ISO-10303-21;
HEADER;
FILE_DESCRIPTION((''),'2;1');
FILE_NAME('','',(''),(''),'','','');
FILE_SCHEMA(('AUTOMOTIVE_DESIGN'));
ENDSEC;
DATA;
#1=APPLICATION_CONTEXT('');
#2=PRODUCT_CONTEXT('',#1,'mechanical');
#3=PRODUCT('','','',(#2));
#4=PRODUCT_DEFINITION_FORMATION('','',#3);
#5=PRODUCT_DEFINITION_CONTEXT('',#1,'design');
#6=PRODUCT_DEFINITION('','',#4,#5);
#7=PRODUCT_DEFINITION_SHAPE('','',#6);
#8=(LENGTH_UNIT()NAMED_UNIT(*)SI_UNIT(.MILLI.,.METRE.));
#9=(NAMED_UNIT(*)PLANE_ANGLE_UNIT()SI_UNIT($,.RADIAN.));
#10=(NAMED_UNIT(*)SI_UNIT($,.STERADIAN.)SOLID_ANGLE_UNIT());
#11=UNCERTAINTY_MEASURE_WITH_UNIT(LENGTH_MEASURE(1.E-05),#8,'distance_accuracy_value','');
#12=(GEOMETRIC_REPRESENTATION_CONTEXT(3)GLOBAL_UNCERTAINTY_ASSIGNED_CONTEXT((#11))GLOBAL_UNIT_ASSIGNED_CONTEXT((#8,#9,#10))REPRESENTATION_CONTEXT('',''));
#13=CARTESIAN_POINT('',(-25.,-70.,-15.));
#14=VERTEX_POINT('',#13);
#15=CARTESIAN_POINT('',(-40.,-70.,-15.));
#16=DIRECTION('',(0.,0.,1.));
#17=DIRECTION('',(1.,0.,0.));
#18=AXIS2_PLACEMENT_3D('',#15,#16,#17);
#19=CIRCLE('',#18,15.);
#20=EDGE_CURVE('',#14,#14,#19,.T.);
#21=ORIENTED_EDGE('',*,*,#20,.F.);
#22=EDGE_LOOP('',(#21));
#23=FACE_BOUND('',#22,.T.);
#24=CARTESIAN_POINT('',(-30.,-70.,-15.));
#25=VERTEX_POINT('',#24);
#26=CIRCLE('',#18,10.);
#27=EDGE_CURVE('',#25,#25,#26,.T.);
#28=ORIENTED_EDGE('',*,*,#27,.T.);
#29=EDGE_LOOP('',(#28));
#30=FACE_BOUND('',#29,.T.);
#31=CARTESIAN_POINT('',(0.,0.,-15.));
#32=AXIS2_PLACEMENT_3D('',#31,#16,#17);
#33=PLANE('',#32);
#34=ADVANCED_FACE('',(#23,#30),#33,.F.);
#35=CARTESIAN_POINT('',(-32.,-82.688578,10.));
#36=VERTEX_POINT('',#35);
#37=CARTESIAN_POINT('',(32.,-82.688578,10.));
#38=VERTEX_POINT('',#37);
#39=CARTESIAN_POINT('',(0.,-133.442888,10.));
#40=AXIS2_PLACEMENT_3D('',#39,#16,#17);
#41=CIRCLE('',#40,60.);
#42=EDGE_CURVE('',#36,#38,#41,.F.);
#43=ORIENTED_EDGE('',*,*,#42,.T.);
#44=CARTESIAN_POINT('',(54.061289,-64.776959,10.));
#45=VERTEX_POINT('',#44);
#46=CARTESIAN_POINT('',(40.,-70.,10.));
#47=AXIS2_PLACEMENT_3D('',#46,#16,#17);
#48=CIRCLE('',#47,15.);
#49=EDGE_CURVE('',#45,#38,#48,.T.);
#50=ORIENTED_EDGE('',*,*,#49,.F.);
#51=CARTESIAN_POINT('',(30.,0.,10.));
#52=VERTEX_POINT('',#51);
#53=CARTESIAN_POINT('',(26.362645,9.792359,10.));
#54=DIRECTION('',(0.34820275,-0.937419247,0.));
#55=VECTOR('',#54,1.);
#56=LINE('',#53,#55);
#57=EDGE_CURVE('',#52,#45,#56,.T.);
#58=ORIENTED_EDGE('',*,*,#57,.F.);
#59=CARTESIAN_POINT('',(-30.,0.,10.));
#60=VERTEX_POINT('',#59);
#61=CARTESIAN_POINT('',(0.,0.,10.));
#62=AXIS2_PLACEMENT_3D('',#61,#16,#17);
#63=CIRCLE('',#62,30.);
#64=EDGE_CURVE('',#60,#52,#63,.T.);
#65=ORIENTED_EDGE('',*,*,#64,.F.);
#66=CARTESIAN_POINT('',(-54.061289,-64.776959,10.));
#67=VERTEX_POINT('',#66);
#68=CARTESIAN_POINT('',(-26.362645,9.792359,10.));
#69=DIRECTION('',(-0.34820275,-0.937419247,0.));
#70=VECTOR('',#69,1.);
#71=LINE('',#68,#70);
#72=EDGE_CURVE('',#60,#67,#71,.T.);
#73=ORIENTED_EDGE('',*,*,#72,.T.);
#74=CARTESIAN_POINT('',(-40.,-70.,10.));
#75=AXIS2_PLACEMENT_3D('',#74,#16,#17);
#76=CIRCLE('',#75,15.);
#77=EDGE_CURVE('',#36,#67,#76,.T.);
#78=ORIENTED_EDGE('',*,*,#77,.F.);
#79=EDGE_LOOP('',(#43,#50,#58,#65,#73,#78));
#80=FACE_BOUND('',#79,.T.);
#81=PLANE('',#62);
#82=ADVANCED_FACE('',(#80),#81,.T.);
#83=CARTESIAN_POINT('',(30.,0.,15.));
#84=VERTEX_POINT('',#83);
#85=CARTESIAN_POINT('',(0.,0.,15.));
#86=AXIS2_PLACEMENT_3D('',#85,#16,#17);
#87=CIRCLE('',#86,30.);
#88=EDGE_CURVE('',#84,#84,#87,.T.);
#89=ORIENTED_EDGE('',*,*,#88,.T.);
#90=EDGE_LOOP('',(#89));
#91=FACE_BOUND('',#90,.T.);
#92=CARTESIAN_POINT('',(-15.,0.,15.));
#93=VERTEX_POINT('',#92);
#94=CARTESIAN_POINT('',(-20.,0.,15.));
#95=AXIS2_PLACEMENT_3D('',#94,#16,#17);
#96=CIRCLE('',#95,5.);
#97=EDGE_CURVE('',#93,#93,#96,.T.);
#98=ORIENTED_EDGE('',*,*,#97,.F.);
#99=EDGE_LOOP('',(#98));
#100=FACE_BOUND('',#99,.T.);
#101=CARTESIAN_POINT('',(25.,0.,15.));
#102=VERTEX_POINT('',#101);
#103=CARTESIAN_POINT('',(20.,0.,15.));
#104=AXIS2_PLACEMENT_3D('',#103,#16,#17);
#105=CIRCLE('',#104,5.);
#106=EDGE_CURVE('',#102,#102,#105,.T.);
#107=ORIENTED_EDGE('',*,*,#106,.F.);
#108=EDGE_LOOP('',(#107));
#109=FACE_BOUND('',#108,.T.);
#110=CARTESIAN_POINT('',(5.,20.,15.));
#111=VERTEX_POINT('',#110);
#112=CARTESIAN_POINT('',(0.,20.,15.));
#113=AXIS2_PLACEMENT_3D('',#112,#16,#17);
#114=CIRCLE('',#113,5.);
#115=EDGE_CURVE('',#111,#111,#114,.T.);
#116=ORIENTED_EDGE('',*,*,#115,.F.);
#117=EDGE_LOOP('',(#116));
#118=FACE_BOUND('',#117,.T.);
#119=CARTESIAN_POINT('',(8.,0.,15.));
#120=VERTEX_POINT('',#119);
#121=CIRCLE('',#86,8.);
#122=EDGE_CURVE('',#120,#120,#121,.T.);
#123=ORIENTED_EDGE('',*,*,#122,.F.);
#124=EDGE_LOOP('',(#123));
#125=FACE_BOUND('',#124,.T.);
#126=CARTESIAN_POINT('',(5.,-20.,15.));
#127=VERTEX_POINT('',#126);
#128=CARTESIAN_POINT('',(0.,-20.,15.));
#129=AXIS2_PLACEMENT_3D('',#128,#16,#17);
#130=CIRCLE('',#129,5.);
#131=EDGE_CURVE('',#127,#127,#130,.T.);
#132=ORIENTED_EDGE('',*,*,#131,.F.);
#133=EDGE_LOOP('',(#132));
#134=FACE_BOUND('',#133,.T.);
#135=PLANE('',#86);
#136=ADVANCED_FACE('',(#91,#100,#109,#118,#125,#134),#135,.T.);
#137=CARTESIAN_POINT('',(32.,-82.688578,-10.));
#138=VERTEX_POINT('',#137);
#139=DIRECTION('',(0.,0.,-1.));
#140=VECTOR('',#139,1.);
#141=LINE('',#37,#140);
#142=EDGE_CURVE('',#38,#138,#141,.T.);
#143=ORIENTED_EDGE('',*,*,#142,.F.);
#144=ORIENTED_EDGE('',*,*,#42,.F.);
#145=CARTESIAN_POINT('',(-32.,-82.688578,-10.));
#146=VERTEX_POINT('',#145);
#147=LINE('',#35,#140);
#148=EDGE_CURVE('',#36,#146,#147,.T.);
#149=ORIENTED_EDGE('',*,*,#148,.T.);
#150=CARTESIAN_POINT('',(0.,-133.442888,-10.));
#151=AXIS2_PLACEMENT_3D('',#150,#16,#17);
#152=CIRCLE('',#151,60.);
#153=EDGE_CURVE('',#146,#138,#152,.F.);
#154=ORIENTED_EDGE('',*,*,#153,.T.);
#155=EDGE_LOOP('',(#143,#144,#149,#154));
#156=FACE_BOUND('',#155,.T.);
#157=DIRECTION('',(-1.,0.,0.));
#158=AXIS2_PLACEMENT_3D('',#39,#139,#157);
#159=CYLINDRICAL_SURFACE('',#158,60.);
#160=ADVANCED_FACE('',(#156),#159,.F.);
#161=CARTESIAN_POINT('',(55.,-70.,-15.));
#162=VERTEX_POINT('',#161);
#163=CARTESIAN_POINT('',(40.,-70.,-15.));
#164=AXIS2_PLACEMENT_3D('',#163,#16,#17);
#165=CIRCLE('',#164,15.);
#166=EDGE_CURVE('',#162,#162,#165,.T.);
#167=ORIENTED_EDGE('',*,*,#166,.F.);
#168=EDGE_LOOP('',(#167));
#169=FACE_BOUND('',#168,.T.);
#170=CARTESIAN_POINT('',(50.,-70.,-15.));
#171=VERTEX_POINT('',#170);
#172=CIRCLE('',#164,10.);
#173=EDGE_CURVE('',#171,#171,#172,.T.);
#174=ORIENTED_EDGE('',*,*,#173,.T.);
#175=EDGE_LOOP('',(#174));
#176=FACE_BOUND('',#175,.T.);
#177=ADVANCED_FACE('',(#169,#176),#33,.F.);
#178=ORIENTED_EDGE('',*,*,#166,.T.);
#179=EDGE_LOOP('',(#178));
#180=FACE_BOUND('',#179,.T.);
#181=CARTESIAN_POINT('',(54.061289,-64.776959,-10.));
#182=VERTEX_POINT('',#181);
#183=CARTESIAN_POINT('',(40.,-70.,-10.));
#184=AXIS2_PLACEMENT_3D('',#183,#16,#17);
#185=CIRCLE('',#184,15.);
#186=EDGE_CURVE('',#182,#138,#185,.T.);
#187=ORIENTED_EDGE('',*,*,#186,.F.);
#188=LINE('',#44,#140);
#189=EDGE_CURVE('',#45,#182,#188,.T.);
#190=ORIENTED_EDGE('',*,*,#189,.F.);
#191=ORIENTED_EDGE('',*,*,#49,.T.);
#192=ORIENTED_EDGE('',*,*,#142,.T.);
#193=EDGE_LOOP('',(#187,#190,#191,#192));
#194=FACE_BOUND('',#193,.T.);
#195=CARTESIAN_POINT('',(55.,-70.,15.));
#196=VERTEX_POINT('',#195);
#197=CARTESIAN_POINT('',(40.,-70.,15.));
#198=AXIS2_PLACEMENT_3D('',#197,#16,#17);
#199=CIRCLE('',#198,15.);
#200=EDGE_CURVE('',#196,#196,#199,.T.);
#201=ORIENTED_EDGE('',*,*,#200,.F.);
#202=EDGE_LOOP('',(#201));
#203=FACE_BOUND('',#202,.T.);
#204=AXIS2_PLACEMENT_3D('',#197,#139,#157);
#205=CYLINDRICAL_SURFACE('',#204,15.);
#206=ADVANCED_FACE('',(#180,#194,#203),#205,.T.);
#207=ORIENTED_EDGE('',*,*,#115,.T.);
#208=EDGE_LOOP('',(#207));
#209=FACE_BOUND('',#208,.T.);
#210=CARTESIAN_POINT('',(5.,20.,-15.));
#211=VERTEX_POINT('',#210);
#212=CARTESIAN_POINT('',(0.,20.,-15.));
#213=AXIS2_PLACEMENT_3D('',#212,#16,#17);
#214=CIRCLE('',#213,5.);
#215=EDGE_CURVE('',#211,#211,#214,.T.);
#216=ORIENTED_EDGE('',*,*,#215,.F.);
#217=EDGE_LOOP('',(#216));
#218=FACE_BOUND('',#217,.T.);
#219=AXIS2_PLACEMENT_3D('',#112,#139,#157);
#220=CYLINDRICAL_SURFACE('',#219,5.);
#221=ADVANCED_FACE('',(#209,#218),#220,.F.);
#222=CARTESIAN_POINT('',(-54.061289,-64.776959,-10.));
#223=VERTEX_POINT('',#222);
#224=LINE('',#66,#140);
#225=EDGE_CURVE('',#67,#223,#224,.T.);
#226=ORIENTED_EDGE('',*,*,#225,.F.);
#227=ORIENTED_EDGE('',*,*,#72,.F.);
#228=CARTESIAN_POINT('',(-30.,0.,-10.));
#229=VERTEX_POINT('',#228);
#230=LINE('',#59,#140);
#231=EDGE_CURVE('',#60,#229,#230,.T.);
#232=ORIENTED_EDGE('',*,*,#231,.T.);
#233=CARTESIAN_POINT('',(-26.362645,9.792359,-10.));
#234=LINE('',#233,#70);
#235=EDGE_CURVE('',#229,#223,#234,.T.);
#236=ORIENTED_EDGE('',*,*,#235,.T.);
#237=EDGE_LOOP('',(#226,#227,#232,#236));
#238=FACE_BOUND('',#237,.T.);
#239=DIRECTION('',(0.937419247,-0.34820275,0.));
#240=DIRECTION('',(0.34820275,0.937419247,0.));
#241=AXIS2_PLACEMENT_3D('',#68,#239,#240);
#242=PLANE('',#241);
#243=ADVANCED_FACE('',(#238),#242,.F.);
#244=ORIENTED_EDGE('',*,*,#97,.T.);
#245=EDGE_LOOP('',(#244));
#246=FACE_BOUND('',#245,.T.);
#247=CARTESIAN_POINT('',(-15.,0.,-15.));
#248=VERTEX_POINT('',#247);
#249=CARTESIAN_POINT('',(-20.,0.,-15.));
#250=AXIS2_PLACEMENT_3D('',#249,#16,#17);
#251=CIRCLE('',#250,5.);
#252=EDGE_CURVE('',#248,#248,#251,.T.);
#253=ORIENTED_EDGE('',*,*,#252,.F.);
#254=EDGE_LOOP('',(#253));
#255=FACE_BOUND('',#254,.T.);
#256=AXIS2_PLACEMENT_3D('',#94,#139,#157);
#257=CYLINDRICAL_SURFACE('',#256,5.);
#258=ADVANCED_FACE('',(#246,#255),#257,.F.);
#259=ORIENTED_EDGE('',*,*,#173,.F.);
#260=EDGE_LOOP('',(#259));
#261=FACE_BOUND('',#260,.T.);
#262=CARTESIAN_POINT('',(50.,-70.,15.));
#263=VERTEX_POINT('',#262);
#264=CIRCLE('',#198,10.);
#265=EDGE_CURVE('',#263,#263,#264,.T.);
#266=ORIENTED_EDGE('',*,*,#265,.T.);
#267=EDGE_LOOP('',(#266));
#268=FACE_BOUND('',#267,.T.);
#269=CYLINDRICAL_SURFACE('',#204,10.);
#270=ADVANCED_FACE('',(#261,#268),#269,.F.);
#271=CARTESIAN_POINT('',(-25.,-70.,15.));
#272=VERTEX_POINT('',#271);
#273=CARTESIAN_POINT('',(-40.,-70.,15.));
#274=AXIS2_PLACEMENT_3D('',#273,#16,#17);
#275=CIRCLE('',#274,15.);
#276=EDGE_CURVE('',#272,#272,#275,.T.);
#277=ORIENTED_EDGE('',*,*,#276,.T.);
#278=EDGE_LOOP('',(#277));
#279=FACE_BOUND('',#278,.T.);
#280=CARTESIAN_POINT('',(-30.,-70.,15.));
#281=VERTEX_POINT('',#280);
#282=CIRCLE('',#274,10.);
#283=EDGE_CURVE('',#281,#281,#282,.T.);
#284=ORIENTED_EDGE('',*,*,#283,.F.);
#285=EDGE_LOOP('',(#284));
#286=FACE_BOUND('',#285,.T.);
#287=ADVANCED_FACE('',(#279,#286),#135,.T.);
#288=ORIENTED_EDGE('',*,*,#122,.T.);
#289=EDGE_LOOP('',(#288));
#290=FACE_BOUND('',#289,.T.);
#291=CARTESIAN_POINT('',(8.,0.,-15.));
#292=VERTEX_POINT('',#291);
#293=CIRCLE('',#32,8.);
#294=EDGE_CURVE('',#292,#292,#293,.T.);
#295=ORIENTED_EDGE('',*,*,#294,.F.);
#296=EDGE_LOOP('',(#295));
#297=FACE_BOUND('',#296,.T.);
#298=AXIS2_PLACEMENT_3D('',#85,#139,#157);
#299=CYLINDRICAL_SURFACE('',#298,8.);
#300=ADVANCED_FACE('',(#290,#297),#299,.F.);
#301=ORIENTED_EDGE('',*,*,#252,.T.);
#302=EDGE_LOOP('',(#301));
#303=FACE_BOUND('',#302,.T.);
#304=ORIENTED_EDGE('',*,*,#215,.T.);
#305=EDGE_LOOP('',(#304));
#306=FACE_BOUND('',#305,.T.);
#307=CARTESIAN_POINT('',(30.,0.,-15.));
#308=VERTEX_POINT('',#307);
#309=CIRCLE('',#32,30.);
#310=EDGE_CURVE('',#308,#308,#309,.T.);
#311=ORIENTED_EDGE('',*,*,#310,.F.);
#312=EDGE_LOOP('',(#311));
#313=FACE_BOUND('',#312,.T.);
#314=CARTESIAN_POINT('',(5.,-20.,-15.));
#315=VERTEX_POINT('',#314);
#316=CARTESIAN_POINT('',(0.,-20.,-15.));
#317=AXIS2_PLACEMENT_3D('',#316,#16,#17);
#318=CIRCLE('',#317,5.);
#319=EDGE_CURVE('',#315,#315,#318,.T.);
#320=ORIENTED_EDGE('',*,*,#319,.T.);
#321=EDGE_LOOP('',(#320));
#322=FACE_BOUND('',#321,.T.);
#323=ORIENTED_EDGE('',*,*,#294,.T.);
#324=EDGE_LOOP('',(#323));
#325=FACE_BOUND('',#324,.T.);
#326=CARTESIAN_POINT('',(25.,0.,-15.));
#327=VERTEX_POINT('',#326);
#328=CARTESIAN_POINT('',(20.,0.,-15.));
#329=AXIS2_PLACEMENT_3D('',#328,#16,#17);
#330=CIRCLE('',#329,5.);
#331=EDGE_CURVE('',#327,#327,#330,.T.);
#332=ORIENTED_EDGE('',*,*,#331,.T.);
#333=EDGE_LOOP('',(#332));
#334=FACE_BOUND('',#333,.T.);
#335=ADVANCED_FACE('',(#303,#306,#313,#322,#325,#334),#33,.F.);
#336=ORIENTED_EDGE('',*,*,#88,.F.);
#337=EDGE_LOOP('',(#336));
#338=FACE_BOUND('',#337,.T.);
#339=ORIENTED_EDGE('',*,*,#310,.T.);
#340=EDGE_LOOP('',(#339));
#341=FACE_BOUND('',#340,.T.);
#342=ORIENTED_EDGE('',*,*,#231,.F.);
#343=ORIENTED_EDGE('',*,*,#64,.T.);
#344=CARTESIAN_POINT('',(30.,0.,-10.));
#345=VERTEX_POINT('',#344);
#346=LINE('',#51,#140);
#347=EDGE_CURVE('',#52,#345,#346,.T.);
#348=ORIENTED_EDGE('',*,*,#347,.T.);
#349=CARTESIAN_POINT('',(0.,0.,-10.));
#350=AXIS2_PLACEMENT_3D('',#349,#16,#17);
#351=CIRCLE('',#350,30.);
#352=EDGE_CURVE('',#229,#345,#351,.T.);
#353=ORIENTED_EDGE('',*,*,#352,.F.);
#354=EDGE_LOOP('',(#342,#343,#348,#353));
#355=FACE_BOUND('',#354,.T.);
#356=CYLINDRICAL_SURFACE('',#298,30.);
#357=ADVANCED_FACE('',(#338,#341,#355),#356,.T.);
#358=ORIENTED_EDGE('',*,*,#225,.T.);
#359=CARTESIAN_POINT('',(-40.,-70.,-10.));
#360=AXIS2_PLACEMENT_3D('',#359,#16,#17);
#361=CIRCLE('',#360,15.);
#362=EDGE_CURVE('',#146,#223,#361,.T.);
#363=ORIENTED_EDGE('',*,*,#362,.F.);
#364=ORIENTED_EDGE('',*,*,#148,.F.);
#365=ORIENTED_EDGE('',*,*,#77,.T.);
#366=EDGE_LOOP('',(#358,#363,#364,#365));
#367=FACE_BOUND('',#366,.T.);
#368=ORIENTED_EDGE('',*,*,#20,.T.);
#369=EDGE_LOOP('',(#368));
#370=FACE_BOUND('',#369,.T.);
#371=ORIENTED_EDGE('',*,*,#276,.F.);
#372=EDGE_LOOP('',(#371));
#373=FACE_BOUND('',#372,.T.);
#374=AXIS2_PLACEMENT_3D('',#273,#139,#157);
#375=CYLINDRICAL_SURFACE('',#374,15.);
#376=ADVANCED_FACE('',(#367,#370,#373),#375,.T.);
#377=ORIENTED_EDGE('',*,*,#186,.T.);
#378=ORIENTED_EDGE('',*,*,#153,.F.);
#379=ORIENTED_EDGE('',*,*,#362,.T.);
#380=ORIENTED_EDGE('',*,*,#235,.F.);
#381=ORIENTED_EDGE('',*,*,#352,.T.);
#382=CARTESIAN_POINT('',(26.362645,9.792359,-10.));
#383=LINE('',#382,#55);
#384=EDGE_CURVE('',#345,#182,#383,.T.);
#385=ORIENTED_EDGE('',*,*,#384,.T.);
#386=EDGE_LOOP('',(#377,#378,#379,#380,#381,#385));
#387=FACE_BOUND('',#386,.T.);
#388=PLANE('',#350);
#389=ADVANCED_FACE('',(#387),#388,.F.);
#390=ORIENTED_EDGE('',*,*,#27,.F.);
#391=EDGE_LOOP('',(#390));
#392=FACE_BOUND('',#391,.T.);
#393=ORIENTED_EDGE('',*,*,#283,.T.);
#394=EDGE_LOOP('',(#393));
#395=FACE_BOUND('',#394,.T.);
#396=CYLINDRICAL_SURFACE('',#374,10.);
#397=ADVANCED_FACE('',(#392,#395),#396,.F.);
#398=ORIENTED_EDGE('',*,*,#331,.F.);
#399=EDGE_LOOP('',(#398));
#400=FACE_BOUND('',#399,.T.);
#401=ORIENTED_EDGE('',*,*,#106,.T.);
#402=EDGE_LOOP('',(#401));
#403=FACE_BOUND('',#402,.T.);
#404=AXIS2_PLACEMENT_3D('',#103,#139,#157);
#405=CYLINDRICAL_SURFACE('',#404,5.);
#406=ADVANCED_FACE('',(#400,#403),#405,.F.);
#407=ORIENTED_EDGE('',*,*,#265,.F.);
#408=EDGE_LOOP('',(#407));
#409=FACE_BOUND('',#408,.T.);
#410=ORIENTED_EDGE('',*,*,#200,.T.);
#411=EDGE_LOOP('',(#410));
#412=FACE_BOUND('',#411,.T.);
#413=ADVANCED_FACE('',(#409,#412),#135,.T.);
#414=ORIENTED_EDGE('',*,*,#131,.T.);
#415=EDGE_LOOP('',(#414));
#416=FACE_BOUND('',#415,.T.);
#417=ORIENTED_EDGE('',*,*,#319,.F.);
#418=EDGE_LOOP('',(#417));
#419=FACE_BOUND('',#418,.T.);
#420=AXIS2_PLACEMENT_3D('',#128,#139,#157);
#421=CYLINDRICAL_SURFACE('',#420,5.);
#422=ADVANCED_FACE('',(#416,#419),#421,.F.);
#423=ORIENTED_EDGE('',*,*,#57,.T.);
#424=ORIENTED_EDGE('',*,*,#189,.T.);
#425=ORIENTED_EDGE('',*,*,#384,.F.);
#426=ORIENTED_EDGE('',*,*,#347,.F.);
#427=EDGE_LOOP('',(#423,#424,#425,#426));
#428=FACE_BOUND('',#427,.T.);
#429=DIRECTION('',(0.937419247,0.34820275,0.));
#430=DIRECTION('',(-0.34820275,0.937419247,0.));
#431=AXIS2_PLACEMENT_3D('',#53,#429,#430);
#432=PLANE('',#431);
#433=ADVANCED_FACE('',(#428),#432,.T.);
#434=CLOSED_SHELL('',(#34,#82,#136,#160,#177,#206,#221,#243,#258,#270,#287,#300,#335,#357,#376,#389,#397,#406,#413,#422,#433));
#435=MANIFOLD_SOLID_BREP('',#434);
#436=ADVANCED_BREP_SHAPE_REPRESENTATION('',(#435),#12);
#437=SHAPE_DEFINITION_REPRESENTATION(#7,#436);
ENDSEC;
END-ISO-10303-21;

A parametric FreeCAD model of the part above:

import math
import FreeCAD as App
import Part
import Sketcher

V = App.Vector

doc = App.newDocument("Part")
body = doc.addObject("PartDesign::Body", "Body")

sketch1 = doc.addObject("Sketcher::SketchObject", "Sketch")
body.addObject(sketch1)
sketch1.AttachmentSupport = (doc.XY_Plane, [""])
sketch1.MapMode = "FlatFace"
sketch1.addGeometry([
    Part.Circle(V(-40, -70, 0), V(0, 0, 1), 15),
    Part.Circle(V(-40, -70, 0), V(0, 0, 1), 10),
], False)
sketch1.addConstraint([
    Sketcher.Constraint("Coincident", 1, 3, 0, 3),
    Sketcher.Constraint("Diameter", 0, 30.0),
    Sketcher.Constraint("Diameter", 1, 20.0),
    Sketcher.Constraint("DistanceX", 0, 3, -1, 1, 40.0),
    Sketcher.Constraint("DistanceY", 0, 3, -1, 1, 70.0),
])
pad1 = doc.addObject("PartDesign::Pad", "Pad")
body.addObject(pad1)
pad1.Profile = sketch1
pad1.Length = 30
pad1.Midplane = True
body2 = doc.addObject("PartDesign::Body", "Body001")

sketch2 = doc.addObject("Sketcher::SketchObject", "Sketch001")
body2.addObject(sketch2)
sketch2.AttachmentSupport = (doc.getObject("XY_Plane001"), [""])
sketch2.MapMode = "FlatFace"
sketch2.addGeometry([
    Part.Circle(V(40, -70, 0), V(0, 0, 1), 15),
    Part.Circle(V(40, -70, 0), V(0, 0, 1), 10),
], False)
sketch2.addConstraint([
    Sketcher.Constraint("Coincident", 1, 3, 0, 3),
    Sketcher.Constraint("Diameter", 0, 30.0),
    Sketcher.Constraint("Diameter", 1, 20.0),
    Sketcher.Constraint("DistanceX", -1, 1, 0, 3, 40.0),
    Sketcher.Constraint("DistanceY", 0, 3, -1, 1, 70.0),
])
pad2 = doc.addObject("PartDesign::Pad", "Pad001")
body2.addObject(pad2)
pad2.Profile = sketch2
pad2.Length = 30
pad2.Midplane = True
body3 = doc.addObject("PartDesign::Body", "Body002")

sketch3 = doc.addObject("Sketcher::SketchObject", "Sketch002")
body3.addObject(sketch3)
sketch3.AttachmentSupport = (doc.getObject("XY_Plane002"), [""])
sketch3.MapMode = "FlatFace"
sketch3.addGeometry([
    Part.Circle(V(0, 0, 0), V(0, 0, 1), 30),
    Part.Circle(V(0, -20, 0), V(0, 0, 1), 5),
    Part.Circle(V(-20, 0, 0), V(0, 0, 1), 5),
    Part.Circle(V(0, 0, 0), V(0, 0, 1), 8),
    Part.Circle(V(20, 0, 0), V(0, 0, 1), 5),
    Part.Circle(V(0, 20, 0), V(0, 0, 1), 5),
], False)
sketch3.addConstraint([
    Sketcher.Constraint("Coincident", 0, 3, -1, 1),
    Sketcher.Constraint("Coincident", 3, 3, -1, 1),
    Sketcher.Constraint("Equal", 1, 2),
    Sketcher.Constraint("Equal", 2, 4),
    Sketcher.Constraint("Equal", 4, 5),
    Sketcher.Constraint("Symmetric", 2, 3, 4, 3, -1, 1),
    Sketcher.Constraint("Symmetric", 1, 3, 5, 3, -1, 1),
    Sketcher.Constraint("PointOnObject", 1, 3, -2),
    Sketcher.Constraint("PointOnObject", 2, 3, -1),
    Sketcher.Constraint("Diameter", 0, 60.0),
    Sketcher.Constraint("Diameter", 1, 10.0),
    Sketcher.Constraint("Diameter", 3, 16.0),
    Sketcher.Constraint("DistanceY", 1, 3, -1, 1, 20.0),
    Sketcher.Constraint("DistanceX", 2, 3, -1, 1, 20.0),
])
pad3 = doc.addObject("PartDesign::Pad", "Pad002")
body3.addObject(pad3)
pad3.Profile = sketch3
pad3.Length = 30
pad3.Midplane = True
body.AllowCompound = True
doc.recompute()

boolean = doc.addObject("PartDesign::Boolean", "Boolean")
body.addObject(boolean)
boolean.Type = "Fuse"
boolean.addObjects([body2])
doc.recompute()

boolean2 = doc.addObject("PartDesign::Boolean", "Boolean001")
body.addObject(boolean2)
boolean2.Type = "Fuse"
boolean2.addObjects([body3])

sketch4 = doc.addObject("Sketcher::SketchObject", "Sketch003")
body.addObject(sketch4)
sketch4.AttachmentSupport = (doc.XY_Plane, [""])
sketch4.MapMode = "FlatFace"
sketch4.addGeometry([
    Part.ArcOfCircle(Part.Circle(V(0, 0, 0), V(0, 0, 1), 30), math.radians(180), math.radians(360)),
    Part.LineSegment(V(-30, 0, 0), V(-54.061289, -64.776959, 0)),
    Part.ArcOfCircle(Part.Circle(V(-40, -70, 0), V(0, 0, 1), 15), math.radians(0), math.radians(159.622573)),
    Part.ArcOfCircle(Part.Circle(V(-40, -70, 0), V(0, 0, 1), 15), math.radians(-57.769047), math.radians(0)),
    Part.ArcOfCircle(Part.Circle(V(0, -133.442888, 0), V(0, 0, 1), 60), math.radians(57.769047), math.radians(122.230953)),
    Part.ArcOfCircle(Part.Circle(V(40, -70, 0), V(0, 0, 1), 15), math.radians(20.377427), math.radians(237.769047)),
    Part.LineSegment(V(54.061289, -64.776959, 0), V(30, 0, 0)),
], False)
sketch4.addConstraint([
    Sketcher.Constraint("Coincident", 0, 1, 1, 1),
    Sketcher.Constraint("Tangent", 1, 2, 2, 2),
    Sketcher.Constraint("Tangent", 2, 1, 3, 2),
    Sketcher.Constraint("Tangent", 3, 1, 4, 2),
    Sketcher.Constraint("Tangent", 4, 1, 5, 2),
    Sketcher.Constraint("Tangent", 5, 1, 6, 1),
    Sketcher.Constraint("Coincident", 6, 2, 0, 2),
    Sketcher.Constraint("Coincident", 0, 3, -1, 1),
    Sketcher.Constraint("Equal", 2, 3),
    Sketcher.Constraint("Equal", 3, 5),
    Sketcher.Constraint("Symmetric", 2, 3, 5, 3, -2),
    Sketcher.Constraint("PointOnObject", 0, 1, -1),
    Sketcher.Constraint("PointOnObject", 6, 2, -1),
    Sketcher.Constraint("Horizontal", 5, 3, 2, 1),
    Sketcher.Constraint("Radius", 0, 30.0),
    Sketcher.Constraint("Radius", 2, 15.0),
    Sketcher.Constraint("Radius", 4, 60.0),
    Sketcher.Constraint("DistanceX", 2, 3, -1, 1, 40.0),
    Sketcher.Constraint("DistanceY", 2, 3, -1, 1, 70.0),
])
pad4 = doc.addObject("PartDesign::Pad", "Pad003")
body.addObject(pad4)
pad4.Profile = sketch4
pad4.Length = 20
pad4.Midplane = True

doc.recompute()
